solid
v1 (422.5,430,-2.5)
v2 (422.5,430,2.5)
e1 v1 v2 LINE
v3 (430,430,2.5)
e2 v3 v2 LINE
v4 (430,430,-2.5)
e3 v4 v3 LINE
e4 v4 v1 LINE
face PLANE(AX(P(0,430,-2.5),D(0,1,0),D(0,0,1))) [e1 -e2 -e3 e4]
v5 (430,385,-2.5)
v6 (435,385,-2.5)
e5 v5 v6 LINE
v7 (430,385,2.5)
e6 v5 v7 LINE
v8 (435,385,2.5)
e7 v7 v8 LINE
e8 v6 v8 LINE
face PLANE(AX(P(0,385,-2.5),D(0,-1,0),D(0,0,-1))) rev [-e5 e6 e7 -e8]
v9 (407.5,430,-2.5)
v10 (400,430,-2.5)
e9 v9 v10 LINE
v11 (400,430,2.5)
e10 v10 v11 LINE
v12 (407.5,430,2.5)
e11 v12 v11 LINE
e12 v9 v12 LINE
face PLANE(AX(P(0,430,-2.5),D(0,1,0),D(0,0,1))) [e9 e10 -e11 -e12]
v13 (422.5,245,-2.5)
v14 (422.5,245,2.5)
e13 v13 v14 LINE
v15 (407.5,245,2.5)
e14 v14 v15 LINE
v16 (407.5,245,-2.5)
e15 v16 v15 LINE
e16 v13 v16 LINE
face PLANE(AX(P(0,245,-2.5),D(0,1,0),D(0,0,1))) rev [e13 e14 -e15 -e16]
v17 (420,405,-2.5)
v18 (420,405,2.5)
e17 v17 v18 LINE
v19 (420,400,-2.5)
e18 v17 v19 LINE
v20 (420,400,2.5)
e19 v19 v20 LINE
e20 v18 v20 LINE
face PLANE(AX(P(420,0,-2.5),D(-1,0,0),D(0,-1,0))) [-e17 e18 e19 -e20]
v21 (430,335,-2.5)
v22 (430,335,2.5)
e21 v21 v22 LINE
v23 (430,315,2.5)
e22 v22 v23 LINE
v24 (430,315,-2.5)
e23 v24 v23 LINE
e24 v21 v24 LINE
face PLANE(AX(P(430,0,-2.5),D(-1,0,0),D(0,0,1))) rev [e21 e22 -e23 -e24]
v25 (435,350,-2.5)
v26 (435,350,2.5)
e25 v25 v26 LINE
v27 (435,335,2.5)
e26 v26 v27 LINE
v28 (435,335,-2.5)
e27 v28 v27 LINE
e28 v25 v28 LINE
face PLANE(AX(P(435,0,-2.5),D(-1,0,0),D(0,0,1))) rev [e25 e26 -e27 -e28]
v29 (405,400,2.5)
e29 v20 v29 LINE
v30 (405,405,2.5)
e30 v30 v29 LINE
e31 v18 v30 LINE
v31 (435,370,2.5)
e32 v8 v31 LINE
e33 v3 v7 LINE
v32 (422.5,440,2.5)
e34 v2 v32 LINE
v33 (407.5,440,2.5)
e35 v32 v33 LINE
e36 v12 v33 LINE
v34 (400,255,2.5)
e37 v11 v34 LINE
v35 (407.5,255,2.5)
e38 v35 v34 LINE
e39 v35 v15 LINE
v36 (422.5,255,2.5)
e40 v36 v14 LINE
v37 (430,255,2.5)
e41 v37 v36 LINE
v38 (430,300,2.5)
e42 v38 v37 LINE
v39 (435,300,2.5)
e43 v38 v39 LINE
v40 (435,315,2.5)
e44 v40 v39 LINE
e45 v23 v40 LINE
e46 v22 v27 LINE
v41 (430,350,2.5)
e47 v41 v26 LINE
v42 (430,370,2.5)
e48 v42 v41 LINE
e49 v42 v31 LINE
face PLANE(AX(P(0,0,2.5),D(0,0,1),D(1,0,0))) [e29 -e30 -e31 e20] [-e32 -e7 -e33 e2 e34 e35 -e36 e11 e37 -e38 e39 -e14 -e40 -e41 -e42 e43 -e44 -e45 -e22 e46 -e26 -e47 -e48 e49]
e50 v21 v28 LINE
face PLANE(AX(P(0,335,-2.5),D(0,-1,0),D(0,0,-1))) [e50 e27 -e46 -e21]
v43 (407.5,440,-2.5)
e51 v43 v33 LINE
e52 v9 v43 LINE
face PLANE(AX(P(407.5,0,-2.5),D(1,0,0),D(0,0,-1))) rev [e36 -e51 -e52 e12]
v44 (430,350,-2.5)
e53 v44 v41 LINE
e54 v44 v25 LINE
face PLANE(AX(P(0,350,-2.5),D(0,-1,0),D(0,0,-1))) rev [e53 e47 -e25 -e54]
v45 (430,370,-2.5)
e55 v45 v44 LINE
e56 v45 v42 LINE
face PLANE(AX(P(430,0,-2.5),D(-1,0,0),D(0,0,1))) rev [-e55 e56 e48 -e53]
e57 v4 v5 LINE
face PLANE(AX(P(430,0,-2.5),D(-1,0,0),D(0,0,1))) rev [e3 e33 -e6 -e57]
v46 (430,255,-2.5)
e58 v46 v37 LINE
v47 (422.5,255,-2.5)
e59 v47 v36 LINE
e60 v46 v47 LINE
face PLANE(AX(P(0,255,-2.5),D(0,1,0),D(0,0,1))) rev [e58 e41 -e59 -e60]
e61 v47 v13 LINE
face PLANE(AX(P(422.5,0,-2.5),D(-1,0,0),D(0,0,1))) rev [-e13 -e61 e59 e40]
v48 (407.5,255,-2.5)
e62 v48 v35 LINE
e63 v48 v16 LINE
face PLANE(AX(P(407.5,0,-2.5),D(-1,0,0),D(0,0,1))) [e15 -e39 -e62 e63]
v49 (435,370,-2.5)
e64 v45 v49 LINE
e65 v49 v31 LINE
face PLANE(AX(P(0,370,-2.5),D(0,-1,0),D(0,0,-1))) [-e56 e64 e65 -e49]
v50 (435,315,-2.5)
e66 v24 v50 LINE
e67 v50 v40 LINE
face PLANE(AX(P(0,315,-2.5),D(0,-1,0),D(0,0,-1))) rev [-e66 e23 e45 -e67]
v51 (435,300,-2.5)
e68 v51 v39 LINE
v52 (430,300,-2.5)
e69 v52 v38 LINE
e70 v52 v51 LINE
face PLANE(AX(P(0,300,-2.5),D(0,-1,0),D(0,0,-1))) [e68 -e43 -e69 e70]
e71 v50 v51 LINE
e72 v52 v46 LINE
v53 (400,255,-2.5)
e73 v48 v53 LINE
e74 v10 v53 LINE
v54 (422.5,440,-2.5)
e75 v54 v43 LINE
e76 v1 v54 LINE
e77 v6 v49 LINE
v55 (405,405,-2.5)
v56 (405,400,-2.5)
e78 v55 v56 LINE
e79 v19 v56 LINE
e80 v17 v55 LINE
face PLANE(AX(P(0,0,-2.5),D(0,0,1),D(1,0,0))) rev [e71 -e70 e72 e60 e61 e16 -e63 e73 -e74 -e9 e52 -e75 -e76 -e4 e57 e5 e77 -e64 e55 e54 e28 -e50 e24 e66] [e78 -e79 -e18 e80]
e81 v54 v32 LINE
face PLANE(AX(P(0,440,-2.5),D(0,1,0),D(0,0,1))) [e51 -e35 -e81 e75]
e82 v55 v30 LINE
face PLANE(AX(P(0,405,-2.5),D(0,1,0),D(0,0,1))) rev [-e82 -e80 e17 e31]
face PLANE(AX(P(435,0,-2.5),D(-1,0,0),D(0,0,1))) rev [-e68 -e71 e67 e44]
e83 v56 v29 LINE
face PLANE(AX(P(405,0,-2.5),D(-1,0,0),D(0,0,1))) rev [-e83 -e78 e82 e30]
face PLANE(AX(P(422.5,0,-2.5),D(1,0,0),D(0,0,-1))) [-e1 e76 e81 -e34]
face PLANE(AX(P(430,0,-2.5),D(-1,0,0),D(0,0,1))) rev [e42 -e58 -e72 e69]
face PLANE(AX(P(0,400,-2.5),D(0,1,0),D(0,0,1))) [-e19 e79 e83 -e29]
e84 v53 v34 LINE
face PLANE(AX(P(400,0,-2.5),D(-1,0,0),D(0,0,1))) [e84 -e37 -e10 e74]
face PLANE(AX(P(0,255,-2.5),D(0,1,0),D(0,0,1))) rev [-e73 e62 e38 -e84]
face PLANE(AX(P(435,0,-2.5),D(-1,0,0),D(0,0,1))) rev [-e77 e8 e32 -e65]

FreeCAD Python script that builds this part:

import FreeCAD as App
import Part
import Sketcher

doc = App.newDocument("Part")
body = doc.addObject("PartDesign::Body", "Body")

sketch1 = body.newObject("Sketcher::SketchObject", "Sketch")
sketch1.AttachmentSupport = (doc.getObject("XY_Plane"), [""])
sketch1.MapMode = "FlatFace"
sketch1.addGeometry(Part.LineSegment(App.Vector(430, 255, 0), App.Vector(430, 300, 0)), False)
sketch1.addGeometry(Part.LineSegment(App.Vector(430, 300, 0), App.Vector(435, 300, 0)), False)
sketch1.addGeometry(Part.LineSegment(App.Vector(435, 300, 0), App.Vector(435, 315, 0)), False)
sketch1.addGeometry(Part.LineSegment(App.Vector(435, 315, 0), App.Vector(430, 315, 0)), False)
sketch1.addGeometry(Part.LineSegment(App.Vector(430, 315, 0), App.Vector(430, 335, 0)), False)
sketch1.addGeometry(Part.LineSegment(App.Vector(430, 335, 0), App.Vector(435, 335, 0)), False)
sketch1.addGeometry(Part.LineSegment(App.Vector(435, 335, 0), App.Vector(435, 350, 0)), False)
sketch1.addGeometry(Part.LineSegment(App.Vector(435, 350, 0), App.Vector(430, 350, 0)), False)
sketch1.addGeometry(Part.LineSegment(App.Vector(430, 350, 0), App.Vector(430, 370, 0)), False)
sketch1.addGeometry(Part.LineSegment(App.Vector(430, 370, 0), App.Vector(435, 370, 0)), False)
sketch1.addGeometry(Part.LineSegment(App.Vector(435, 370, 0), App.Vector(435, 385, 0)), False)
sketch1.addGeometry(Part.LineSegment(App.Vector(435, 385, 0), App.Vector(430, 385, 0)), False)
sketch1.addGeometry(Part.LineSegment(App.Vector(430, 385, 0), App.Vector(430, 430, 0)), False)
sketch1.addGeometry(Part.LineSegment(App.Vector(430, 430, 0), App.Vector(422, 430, 0)), False)
sketch1.addGeometry(Part.LineSegment(App.Vector(422, 430, 0), App.Vector(422, 440, 0)), False)
sketch1.addGeometry(Part.LineSegment(App.Vector(422, 440, 0), App.Vector(408, 440, 0)), False)
sketch1.addGeometry(Part.LineSegment(App.Vector(408, 440, 0), App.Vector(408, 430, 0)), False)
sketch1.addGeometry(Part.LineSegment(App.Vector(408, 430, 0), App.Vector(400, 430, 0)), False)
sketch1.addGeometry(Part.LineSegment(App.Vector(400, 430, 0), App.Vector(400, 255, 0)), False)
sketch1.addGeometry(Part.LineSegment(App.Vector(400, 255, 0), App.Vector(408, 255, 0)), False)
sketch1.addGeometry(Part.LineSegment(App.Vector(408, 255, 0), App.Vector(408, 245, 0)), False)
sketch1.addGeometry(Part.LineSegment(App.Vector(408, 245, 0), App.Vector(422, 245, 0)), False)
sketch1.addGeometry(Part.LineSegment(App.Vector(422, 245, 0), App.Vector(422, 255, 0)), False)
sketch1.addGeometry(Part.LineSegment(App.Vector(422, 255, 0), App.Vector(430, 255, 0)), False)
sketch1.addGeometry(Part.LineSegment(App.Vector(405, 400, 0), App.Vector(405, 405, 0)), False)
sketch1.addGeometry(Part.LineSegment(App.Vector(405, 405, 0), App.Vector(420, 405, 0)), False)
sketch1.addGeometry(Part.LineSegment(App.Vector(420, 405, 0), App.Vector(420, 400, 0)), False)
sketch1.addGeometry(Part.LineSegment(App.Vector(420, 400, 0), App.Vector(405, 400, 0)), False)
sketch1.addConstraint(Sketcher.Constraint("Coincident", 0, 2, 1, 1))
sketch1.addConstraint(Sketcher.Constraint("Coincident", 1, 2, 2, 1))
sketch1.addConstraint(Sketcher.Constraint("Coincident", 2, 2, 3, 1))
sketch1.addConstraint(Sketcher.Constraint("Coincident", 3, 2, 4, 1))
sketch1.addConstraint(Sketcher.Constraint("Coincident", 4, 2, 5, 1))
sketch1.addConstraint(Sketcher.Constraint("Coincident", 5, 2, 6, 1))
sketch1.addConstraint(Sketcher.Constraint("Coincident", 6, 2, 7, 1))
sketch1.addConstraint(Sketcher.Constraint("Coincident", 7, 2, 8, 1))
sketch1.addConstraint(Sketcher.Constraint("Coincident", 8, 2, 9, 1))
sketch1.addConstraint(Sketcher.Constraint("Coincident", 9, 2, 10, 1))
sketch1.addConstraint(Sketcher.Constraint("Coincident", 10, 2, 11, 1))
sketch1.addConstraint(Sketcher.Constraint("Coincident", 11, 2, 12, 1))
sketch1.addConstraint(Sketcher.Constraint("Coincident", 12, 2, 13, 1))
sketch1.addConstraint(Sketcher.Constraint("Coincident", 13, 2, 14, 1))
sketch1.addConstraint(Sketcher.Constraint("Coincident", 14, 2, 15, 1))
sketch1.addConstraint(Sketcher.Constraint("Coincident", 15, 2, 16, 1))
sketch1.addConstraint(Sketcher.Constraint("Coincident", 16, 2, 17, 1))
sketch1.addConstraint(Sketcher.Constraint("Coincident", 17, 2, 18, 1))
sketch1.addConstraint(Sketcher.Constraint("Coincident", 18, 2, 19, 1))
sketch1.addConstraint(Sketcher.Constraint("Coincident", 19, 2, 20, 1))
sketch1.addConstraint(Sketcher.Constraint("Coincident", 20, 2, 21, 1))
sketch1.addConstraint(Sketcher.Constraint("Coincident", 21, 2, 22, 1))
sketch1.addConstraint(Sketcher.Constraint("Coincident", 22, 2, 23, 1))
sketch1.addConstraint(Sketcher.Constraint("Coincident", 23, 2, 0, 1))
sketch1.addConstraint(Sketcher.Constraint("Coincident", 24, 2, 25, 1))
sketch1.addConstraint(Sketcher.Constraint("Coincident", 25, 2, 26, 1))
sketch1.addConstraint(Sketcher.Constraint("Coincident", 26, 2, 27, 1))
sketch1.addConstraint(Sketcher.Constraint("Coincident", 27, 2, 24, 1))
sketch1.addConstraint(Sketcher.Constraint("Vertical", 0))
sketch1.addConstraint(Sketcher.Constraint("Horizontal", 1))
sketch1.addConstraint(Sketcher.Constraint("Vertical", 2))
sketch1.addConstraint(Sketcher.Constraint("Horizontal", 3))
sketch1.addConstraint(Sketcher.Constraint("Vertical", 4))
sketch1.addConstraint(Sketcher.Constraint("Horizontal", 5))
sketch1.addConstraint(Sketcher.Constraint("Vertical", 6))
sketch1.addConstraint(Sketcher.Constraint("Horizontal", 7))
sketch1.addConstraint(Sketcher.Constraint("Vertical", 8))
sketch1.addConstraint(Sketcher.Constraint("Horizontal", 9))
sketch1.addConstraint(Sketcher.Constraint("Vertical", 10))
sketch1.addConstraint(Sketcher.Constraint("Horizontal", 11))
sketch1.addConstraint(Sketcher.Constraint("Vertical", 12))
sketch1.addConstraint(Sketcher.Constraint("Horizontal", 13))
sketch1.addConstraint(Sketcher.Constraint("Vertical", 14))
sketch1.addConstraint(Sketcher.Constraint("Horizontal", 15))
sketch1.addConstraint(Sketcher.Constraint("Vertical", 16))
sketch1.addConstraint(Sketcher.Constraint("Horizontal", 17))
sketch1.addConstraint(Sketcher.Constraint("Vertical", 18))
sketch1.addConstraint(Sketcher.Constraint("Horizontal", 19))
sketch1.addConstraint(Sketcher.Constraint("Vertical", 20))
sketch1.addConstraint(Sketcher.Constraint("Horizontal", 21))
sketch1.addConstraint(Sketcher.Constraint("Vertical", 22))
sketch1.addConstraint(Sketcher.Constraint("Horizontal", 23))
sketch1.addConstraint(Sketcher.Constraint("Vertical", 24))
sketch1.addConstraint(Sketcher.Constraint("Horizontal", 25))
sketch1.addConstraint(Sketcher.Constraint("Vertical", 26))
sketch1.addConstraint(Sketcher.Constraint("Horizontal", 27))
sketch1.addConstraint(Sketcher.Constraint("Horizontal", 13, 2, 16, 2))
sketch1.addConstraint(Sketcher.Constraint("Horizontal", 19, 2, 22, 2))
sketch1.addConstraint(Sketcher.Constraint("Vertical", 0, 2, 3, 2))
sketch1.addConstraint(Sketcher.Constraint("Vertical", 2, 2, 5, 2))
sketch1.addConstraint(Sketcher.Constraint("Vertical", 4, 2, 7, 2))
sketch1.addConstraint(Sketcher.Constraint("Vertical", 6, 2, 9, 2))
sketch1.addConstraint(Sketcher.Constraint("Vertical", 8, 2, 11, 2))
sketch1.addConstraint(Sketcher.Constraint("Vertical", 16, 2, 19, 2))
sketch1.addConstraint(Sketcher.Constraint("Vertical", 14, 2, 21, 2))
sketch1.addConstraint(Sketcher.Constraint("Equal", 13, 17))
sketch1.addConstraint(Sketcher.Constraint("Equal", 21, 25))
sketch1.addConstraint(Sketcher.Constraint("Equal", 27, 2))
sketch1.addConstraint(Sketcher.Constraint("Equal", 2, 6))
sketch1.addConstraint(Sketcher.Constraint("Equal", 4, 8))
sketch1.addConstraint(Sketcher.Constraint("Equal", 6, 10))
sketch1.addConstraint(Sketcher.Constraint("Equal", 0, 12))
sketch1.addConstraint(Sketcher.Constraint("Equal", 16, 20))
sketch1.addConstraint(Sketcher.Constraint("Equal", 11, 24))
sketch1.addConstraint(Sketcher.Constraint("DistanceX", 1, 1, 1, 2, 5.0))
sketch1.addConstraint(Sketcher.Constraint("DistanceX", 15, 2, 15, 1, 15.0))
sketch1.addConstraint(Sketcher.Constraint("DistanceY", 0, 1, 0, 2, 45.0))
sketch1.addConstraint(Sketcher.Constraint("DistanceY", 4, 1, 4, 2, 20.0))
sketch1.addConstraint(Sketcher.Constraint("DistanceY", 14, 1, 14, 2, 10.0))
sketch1.addConstraint(Sketcher.Constraint("DistanceX", 13, 2, 13, 1, 7.5))
sketch1.addConstraint(Sketcher.Constraint("DistanceX", -1, 1, 0, 2, 430.0))
sketch1.addConstraint(Sketcher.Constraint("DistanceY", -1, 1, 0, 2, 300.0))
sketch1.addConstraint(Sketcher.Constraint("DistanceX", -1, 1, 24, 2, 405.0))
sketch1.addConstraint(Sketcher.Constraint("DistanceY", -1, 1, 24, 2, 405.0))
pad1 = body.newObject("PartDesign::Pad", "Pad")
pad1.Profile = sketch1
pad1.Length = 5
pad1.Midplane = True

doc.recompute()
